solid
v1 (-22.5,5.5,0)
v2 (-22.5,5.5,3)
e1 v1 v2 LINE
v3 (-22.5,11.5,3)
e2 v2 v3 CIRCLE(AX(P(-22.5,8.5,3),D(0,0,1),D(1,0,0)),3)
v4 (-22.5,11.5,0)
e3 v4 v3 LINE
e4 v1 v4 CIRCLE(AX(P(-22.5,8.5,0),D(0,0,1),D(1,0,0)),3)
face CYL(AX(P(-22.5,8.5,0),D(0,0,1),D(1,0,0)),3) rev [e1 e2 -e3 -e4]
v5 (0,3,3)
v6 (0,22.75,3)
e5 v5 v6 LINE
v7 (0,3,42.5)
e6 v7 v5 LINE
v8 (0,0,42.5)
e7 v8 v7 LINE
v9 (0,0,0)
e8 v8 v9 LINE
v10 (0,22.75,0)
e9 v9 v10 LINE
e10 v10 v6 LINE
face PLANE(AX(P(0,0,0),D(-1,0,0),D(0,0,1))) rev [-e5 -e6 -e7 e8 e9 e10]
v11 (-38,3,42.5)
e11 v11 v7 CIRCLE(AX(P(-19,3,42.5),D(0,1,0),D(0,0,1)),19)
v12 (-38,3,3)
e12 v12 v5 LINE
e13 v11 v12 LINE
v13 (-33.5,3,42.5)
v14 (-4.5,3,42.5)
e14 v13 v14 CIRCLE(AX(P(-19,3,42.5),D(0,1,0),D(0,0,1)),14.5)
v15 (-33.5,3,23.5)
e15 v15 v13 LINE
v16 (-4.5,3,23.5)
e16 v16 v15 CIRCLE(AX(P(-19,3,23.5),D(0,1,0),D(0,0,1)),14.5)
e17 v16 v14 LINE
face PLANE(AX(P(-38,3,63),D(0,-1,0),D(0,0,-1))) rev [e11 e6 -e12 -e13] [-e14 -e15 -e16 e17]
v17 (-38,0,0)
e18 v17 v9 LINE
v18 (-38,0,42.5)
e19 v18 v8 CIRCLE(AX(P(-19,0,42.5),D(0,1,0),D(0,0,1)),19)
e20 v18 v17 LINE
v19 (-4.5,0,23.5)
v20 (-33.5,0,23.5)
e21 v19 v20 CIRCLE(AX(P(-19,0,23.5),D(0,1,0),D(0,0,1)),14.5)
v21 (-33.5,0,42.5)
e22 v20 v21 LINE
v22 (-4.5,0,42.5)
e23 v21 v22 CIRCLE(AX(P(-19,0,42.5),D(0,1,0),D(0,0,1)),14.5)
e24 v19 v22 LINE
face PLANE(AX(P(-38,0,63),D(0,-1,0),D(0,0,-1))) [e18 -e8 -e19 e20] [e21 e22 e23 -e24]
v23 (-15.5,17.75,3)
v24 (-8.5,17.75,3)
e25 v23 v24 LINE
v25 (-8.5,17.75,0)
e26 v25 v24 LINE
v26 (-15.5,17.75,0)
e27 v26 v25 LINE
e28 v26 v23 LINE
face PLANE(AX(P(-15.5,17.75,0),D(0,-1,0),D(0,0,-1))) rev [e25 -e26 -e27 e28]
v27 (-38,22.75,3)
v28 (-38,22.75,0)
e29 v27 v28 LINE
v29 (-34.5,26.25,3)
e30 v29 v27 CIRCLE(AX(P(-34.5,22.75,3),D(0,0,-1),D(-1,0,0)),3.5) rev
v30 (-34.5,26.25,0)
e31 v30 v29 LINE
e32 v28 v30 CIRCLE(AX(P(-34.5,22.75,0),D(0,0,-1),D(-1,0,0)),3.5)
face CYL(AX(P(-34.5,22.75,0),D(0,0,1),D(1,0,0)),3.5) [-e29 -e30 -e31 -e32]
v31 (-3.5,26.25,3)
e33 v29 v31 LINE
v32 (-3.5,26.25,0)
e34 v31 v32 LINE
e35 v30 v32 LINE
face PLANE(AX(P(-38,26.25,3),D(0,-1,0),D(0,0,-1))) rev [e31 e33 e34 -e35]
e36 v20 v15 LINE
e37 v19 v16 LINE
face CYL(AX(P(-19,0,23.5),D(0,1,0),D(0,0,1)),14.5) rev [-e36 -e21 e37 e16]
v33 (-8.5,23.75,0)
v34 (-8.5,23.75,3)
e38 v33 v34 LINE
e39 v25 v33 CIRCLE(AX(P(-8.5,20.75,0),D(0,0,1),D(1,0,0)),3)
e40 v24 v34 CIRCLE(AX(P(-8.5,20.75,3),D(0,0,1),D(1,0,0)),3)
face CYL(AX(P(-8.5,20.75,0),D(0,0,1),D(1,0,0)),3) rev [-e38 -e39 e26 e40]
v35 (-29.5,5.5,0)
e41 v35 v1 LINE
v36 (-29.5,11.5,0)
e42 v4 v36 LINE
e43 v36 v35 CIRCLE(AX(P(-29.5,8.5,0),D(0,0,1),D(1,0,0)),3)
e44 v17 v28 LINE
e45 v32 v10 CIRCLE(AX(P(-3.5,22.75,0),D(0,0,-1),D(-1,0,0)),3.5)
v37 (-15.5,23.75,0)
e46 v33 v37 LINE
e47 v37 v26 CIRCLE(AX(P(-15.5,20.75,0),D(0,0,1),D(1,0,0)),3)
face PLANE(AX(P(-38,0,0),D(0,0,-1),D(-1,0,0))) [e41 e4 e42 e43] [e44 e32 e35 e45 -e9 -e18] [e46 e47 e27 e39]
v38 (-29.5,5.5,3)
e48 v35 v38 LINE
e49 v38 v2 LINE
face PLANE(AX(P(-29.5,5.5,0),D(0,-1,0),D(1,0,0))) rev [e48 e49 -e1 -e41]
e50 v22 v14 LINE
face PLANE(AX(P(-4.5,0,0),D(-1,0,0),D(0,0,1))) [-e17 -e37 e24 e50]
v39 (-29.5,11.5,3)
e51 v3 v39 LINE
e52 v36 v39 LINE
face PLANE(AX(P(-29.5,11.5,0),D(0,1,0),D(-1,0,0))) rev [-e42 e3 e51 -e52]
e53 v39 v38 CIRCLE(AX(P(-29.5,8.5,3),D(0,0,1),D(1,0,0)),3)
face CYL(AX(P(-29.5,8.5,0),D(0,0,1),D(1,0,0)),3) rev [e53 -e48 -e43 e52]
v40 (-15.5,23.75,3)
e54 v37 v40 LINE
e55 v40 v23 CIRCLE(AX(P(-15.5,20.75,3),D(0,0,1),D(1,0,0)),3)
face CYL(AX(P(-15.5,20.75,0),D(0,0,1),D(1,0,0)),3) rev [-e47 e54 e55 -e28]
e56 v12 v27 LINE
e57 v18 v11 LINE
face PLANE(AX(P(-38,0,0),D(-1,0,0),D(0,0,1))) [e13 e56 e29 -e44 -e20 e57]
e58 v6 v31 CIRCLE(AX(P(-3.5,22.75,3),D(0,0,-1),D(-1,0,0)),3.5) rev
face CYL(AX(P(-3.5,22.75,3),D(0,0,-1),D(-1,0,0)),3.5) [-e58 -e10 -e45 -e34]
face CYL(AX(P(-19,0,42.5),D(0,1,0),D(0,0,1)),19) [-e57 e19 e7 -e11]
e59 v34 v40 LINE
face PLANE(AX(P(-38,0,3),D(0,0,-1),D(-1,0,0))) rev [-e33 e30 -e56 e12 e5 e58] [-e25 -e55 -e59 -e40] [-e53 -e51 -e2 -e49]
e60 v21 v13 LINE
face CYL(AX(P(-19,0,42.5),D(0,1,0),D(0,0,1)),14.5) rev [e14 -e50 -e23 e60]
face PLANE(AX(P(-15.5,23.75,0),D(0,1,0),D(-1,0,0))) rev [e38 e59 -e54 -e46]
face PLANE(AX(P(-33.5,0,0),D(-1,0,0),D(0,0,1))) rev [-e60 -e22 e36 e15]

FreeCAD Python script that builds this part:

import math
import FreeCAD as App
import Part
import Sketcher
from FreeCAD import Vector


def edges_at(feature, points):
    """Names of the edges that pass closest to the given points."""
    edges = feature.Shape.Edges
    near = lambda p: min(range(len(edges)), key=lambda i: edges[i].distToShape(Part.Vertex(*p))[0])
    return sorted({f"Edge{near(p) + 1}" for p in points})

doc = App.newDocument("Part")
body = doc.addObject("PartDesign::Body", "Body")

sketch1 = doc.addObject("Sketcher::SketchObject", "Sketch")
body.addObject(sketch1)
sketch1.AttachmentSupport = (doc.YZ_Plane, [""])
sketch1.MapMode = "FlatFace"
sketch1.addGeometry(Part.LineSegment(Vector(0, 63, 0), Vector(0, 0, 0)), False)
sketch1.addGeometry(Part.LineSegment(Vector(0, 0, 0), Vector(26.2, 0, 0)), False)
sketch1.addGeometry(Part.LineSegment(Vector(26.2, 0, 0), Vector(26.2, 3, 0)), False)
sketch1.addGeometry(Part.LineSegment(Vector(26.2, 3, 0), Vector(3, 3, 0)), False)
sketch1.addGeometry(Part.LineSegment(Vector(3, 3, 0), Vector(3, 63, 0)), False)
sketch1.addGeometry(Part.LineSegment(Vector(3, 63, 0), Vector(0, 63, 0)), False)
sketch1.addConstraint(Sketcher.Constraint("Coincident", 0, 2, 1, 1))
sketch1.addConstraint(Sketcher.Constraint("Coincident", 1, 2, 2, 1))
sketch1.addConstraint(Sketcher.Constraint("Coincident", 2, 2, 3, 1))
sketch1.addConstraint(Sketcher.Constraint("Coincident", 3, 2, 4, 1))
sketch1.addConstraint(Sketcher.Constraint("Coincident", 4, 2, 5, 1))
sketch1.addConstraint(Sketcher.Constraint("Coincident", 5, 2, 0, 1))
sketch1.addConstraint(Sketcher.Constraint("Vertical", 0))
sketch1.addConstraint(Sketcher.Constraint("Horizontal", 1))
sketch1.addConstraint(Sketcher.Constraint("Vertical", 2))
sketch1.addConstraint(Sketcher.Constraint("Horizontal", 3))
sketch1.addConstraint(Sketcher.Constraint("Vertical", 4))
sketch1.addConstraint(Sketcher.Constraint("Horizontal", 5))
sketch1.addConstraint(Sketcher.Constraint("Coincident", 0, 2, -1, 1))
sketch1.addConstraint(Sketcher.Constraint("Equal", 5, 2))
sketch1.addConstraint(Sketcher.Constraint("DistanceX", 5, 2, 5, 1, 3.0))
sketch1.addConstraint(Sketcher.Constraint("DistanceY", 0, 2, 0, 1, 63.0))
sketch1.addConstraint(Sketcher.Constraint("DistanceX", 1, 1, 1, 2, 26.25))
pad1 = doc.addObject("PartDesign::Pad", "Pad")
body.addObject(pad1)
pad1.Profile = sketch1
pad1.Length = 38
pad1.Reversed = True

sketch2 = doc.addObject("Sketcher::SketchObject", "Sketch001")
body.addObject(sketch2)
sketch2.AttachmentSupport = (doc.XY_Plane, [""])
sketch2.MapMode = "FlatFace"
sketch2.AttachmentOffset = App.Placement(Vector(0, 0, 3), App.Rotation())
sketch2.addGeometry(Part.LineSegment(Vector(-22.5, 11.5, 0), Vector(-29.5, 11.5, 0)), False)
sketch2.addGeometry(Part.ArcOfCircle(Part.Circle(Vector(-29.5, 8.5, 0), Vector(0, 0, 1), 3), math.radians(90), math.radians(270)), False)
sketch2.addGeometry(Part.LineSegment(Vector(-29.5, 5.5, 0), Vector(-22.5, 5.5, 0)), False)
sketch2.addGeometry(Part.ArcOfCircle(Part.Circle(Vector(-22.5, 8.5, 0), Vector(0, 0, 1), 3), math.radians(-90), math.radians(90)), False)
sketch2.addGeometry(Part.LineSegment(Vector(-8.5, 23.8, 0), Vector(-15.5, 23.8, 0)), False)
sketch2.addGeometry(Part.ArcOfCircle(Part.Circle(Vector(-15.5, 20.8, 0), Vector(0, 0, 1), 3), math.radians(90), math.radians(270)), False)
sketch2.addGeometry(Part.LineSegment(Vector(-15.5, 17.8, 0), Vector(-8.5, 17.8, 0)), False)
sketch2.addGeometry(Part.ArcOfCircle(Part.Circle(Vector(-8.5, 20.8, 0), Vector(0, 0, 1), 3), math.radians(-90), math.radians(90)), False)
sketch2.addConstraint(Sketcher.Constraint("Tangent", 0, 2, 1, 1))
sketch2.addConstraint(Sketcher.Constraint("Tangent", 1, 2, 2, 1))
sketch2.addConstraint(Sketcher.Constraint("Tangent", 2, 2, 3, 1))
sketch2.addConstraint(Sketcher.Constraint("Tangent", 3, 2, 0, 1))
sketch2.addConstraint(Sketcher.Constraint("Tangent", 4, 2, 5, 1))
sketch2.addConstraint(Sketcher.Constraint("Tangent", 5, 2, 6, 1))
sketch2.addConstraint(Sketcher.Constraint("Tangent", 6, 2, 7, 1))
sketch2.addConstraint(Sketcher.Constraint("Tangent", 7, 2, 4, 1))
sketch2.addConstraint(Sketcher.Constraint("Horizontal", 0))
sketch2.addConstraint(Sketcher.Constraint("Horizontal", 2))
sketch2.addConstraint(Sketcher.Constraint("Horizontal", 4))
sketch2.addConstraint(Sketcher.Constraint("Horizontal", 6))
sketch2.addConstraint(Sketcher.Constraint("Equal", 3, 5))
sketch2.addConstraint(Sketcher.Constraint("Equal", 2, 4))
sketch2.addConstraint(Sketcher.Constraint("Radius", 1, 3.0))
sketch2.addConstraint(Sketcher.Constraint("DistanceX", 0, 2, 0, 1, 7.0))
sketch2.addConstraint(Sketcher.Constraint("DistanceX", 3, 3, 5, 3, 7.0))
sketch2.addConstraint(Sketcher.Constraint("DistanceX", 1, 3, -1, 1, 29.5))
sketch2.addConstraint(Sketcher.Constraint("DistanceY", -1, 1, 1, 3, 8.5))
sketch2.addConstraint(Sketcher.Constraint("DistanceY", -1, 1, 5, 3, 20.75))
pocket1 = doc.addObject("PartDesign::Pocket", "Pocket")
body.addObject(pocket1)
pocket1.Profile = sketch2
pocket1.Type = "ThroughAll"
doc.recompute()

fillet = doc.addObject("PartDesign::Fillet", "Fillet")
body.addObject(fillet)
fillet.Base = (pocket1, edges_at(pocket1, [(-38, 26.25, 1.5)]))
fillet.Radius = 3.5
doc.recompute()

fillet2 = doc.addObject("PartDesign::Fillet", "Fillet001")
body.addObject(fillet2)
fillet2.Base = (fillet, edges_at(fillet, [(0, 26.25, 1.5)]))
fillet2.Radius = 3.5

sketch3 = doc.addObject("Sketcher::SketchObject", "Sketch002")
body.addObject(sketch3)
sketch3.AttachmentSupport = (doc.XZ_Plane, [""])
sketch3.MapMode = "FlatFace"
sketch3.AttachmentOffset = App.Placement(Vector(0, 0, -3), App.Rotation())
sketch3.addGeometry(Part.LineSegment(Vector(-34, 24, 0), Vector(-34, 42, 0)), False)
sketch3.addGeometry(Part.ArcOfCircle(Part.Circle(Vector(-19, 42, 0), Vector(0, 0, 1), 14), math.radians(0), math.radians(180)), False)
sketch3.addGeometry(Part.LineSegment(Vector(-4, 42, 0), Vector(-4, 24, 0)), False)
sketch3.addGeometry(Part.ArcOfCircle(Part.Circle(Vector(-19, 24, 0), Vector(0, 0, 1), 14), math.radians(180), math.radians(360)), False)
sketch3.addGeometry(Part.LineSegment(Vector(0, 63, 0), Vector(0, 42, 0)), False)
sketch3.addGeometry(Part.ArcOfCircle(Part.Circle(Vector(-19, 42, 0), Vector(0, 0, 1), 19), math.radians(0), math.radians(180)), False)
sketch3.addGeometry(Part.LineSegment(Vector(-38, 42, 0), Vector(-38, 63, 0)), False)
sketch3.addGeometry(Part.LineSegment(Vector(-38, 63, 0), Vector(0, 63, 0)), False)
sketch3.addConstraint(Sketcher.Constraint("Tangent", 0, 2, 1, 2))
sketch3.addConstraint(Sketcher.Constraint("Tangent", 1, 1, 2, 1))
sketch3.addConstraint(Sketcher.Constraint("Tangent", 2, 2, 3, 2))
sketch3.addConstraint(Sketcher.Constraint("Tangent", 3, 1, 0, 1))
sketch3.addConstraint(Sketcher.Constraint("Tangent", 4, 2, 5, 1))
sketch3.addConstraint(Sketcher.Constraint("Tangent", 5, 2, 6, 1))
sketch3.addConstraint(Sketcher.Constraint("Coincident", 6, 2, 7, 1))
sketch3.addConstraint(Sketcher.Constraint("Coincident", 7, 2, 4, 1))
sketch3.addConstraint(Sketcher.Constraint("Vertical", 0))
sketch3.addConstraint(Sketcher.Constraint("Vertical", 2))
sketch3.addConstraint(Sketcher.Constraint("Vertical", 4))
sketch3.addConstraint(Sketcher.Constraint("Vertical", 6))
sketch3.addConstraint(Sketcher.Constraint("Horizontal", 7))
sketch3.addConstraint(Sketcher.Constraint("Coincident", 5, 3, 1, 3))
sketch3.addConstraint(Sketcher.Constraint("PointOnObject", 4, 2, -2))
sketch3.addConstraint(Sketcher.Constraint("Radius", 5, 19.0))
sketch3.addConstraint(Sketcher.Constraint("Radius", 1, 14.5))
sketch3.addConstraint(Sketcher.Constraint("DistanceY", 0, 1, 0, 2, 19.0))
sketch3.addConstraint(Sketcher.Constraint("DistanceY", 4, 2, 4, 1, 20.5))
sketch3.addConstraint(Sketcher.Constraint("DistanceY", -1, 1, 6, 2, 63.0))
pocket2 = doc.addObject("PartDesign::Pocket", "Pocket001")
body.addObject(pocket2)
pocket2.Profile = sketch3
pocket2.Type = "ThroughAll"
pocket2.Reversed = True

doc.recompute()
